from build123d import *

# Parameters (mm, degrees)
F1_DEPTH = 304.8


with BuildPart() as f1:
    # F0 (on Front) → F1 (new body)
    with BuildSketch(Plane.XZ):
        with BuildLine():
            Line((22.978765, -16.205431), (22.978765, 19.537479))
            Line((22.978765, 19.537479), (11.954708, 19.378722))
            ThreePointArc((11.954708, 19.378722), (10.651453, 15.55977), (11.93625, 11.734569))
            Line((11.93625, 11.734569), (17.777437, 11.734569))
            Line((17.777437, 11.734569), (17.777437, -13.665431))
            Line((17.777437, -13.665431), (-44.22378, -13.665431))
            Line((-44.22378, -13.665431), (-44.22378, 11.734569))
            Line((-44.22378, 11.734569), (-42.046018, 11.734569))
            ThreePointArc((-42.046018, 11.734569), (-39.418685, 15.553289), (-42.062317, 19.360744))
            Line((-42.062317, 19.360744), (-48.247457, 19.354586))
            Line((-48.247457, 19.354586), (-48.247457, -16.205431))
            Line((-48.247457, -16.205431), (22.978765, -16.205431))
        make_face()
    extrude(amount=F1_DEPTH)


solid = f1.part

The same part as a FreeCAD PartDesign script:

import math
import FreeCAD as App
import Part
import Sketcher

V = App.Vector
Q = App.Units.Quantity

doc = App.newDocument("Part")
body = doc.addObject("PartDesign::Body", "Body")

sketch1 = body.newObject("Sketcher::SketchObject", "Sketch")
sketch1.AttachmentSupport = (doc.getObject("XZ_Plane"), [""])
sketch1.MapMode = "FlatFace"
sketch1.addGeometry([
    Part.LineSegment(V(22.978765, -16.205431, 0), V(22.978765, 19.537479, 0)),
    Part.LineSegment(V(22.978765, 19.537479, 0), V(11.954708, 19.378722, 0)),
    Part.ArcOfCircle(Part.Circle(V(16.94297, 15.544578, 0), V(0, 0, 1), 6.291535), math.radians(142.452923), math.radians(217.270379)),
    Part.LineSegment(V(11.93625, 11.734569, 0), V(17.777437, 11.734569, 0)),
    Part.LineSegment(V(17.777437, 11.734569, 0), V(17.777437, -13.665431, 0)),
    Part.LineSegment(V(17.777437, -13.665431, 0), V(-44.22378, -13.665431, 0)),
    Part.LineSegment(V(-44.22378, -13.665431, 0), V(-44.22378, 11.734569, 0)),
    Part.LineSegment(V(-44.22378, 11.734569, 0), V(-42.046018, 11.734569, 0)),
    Part.ArcOfCircle(Part.Circle(V(-43.494865, 15.544577, 0), V(0, 0, 1), 4.07619), math.radians(-69.179488), math.radians(69.424398)),
    Part.LineSegment(V(-42.062317, 19.360744, 0), V(-48.247457, 19.354586, 0)),
    Part.LineSegment(V(-48.247457, 19.354586, 0), V(-48.247457, -16.205431, 0)),
    Part.LineSegment(V(-48.247457, -16.205431, 0), V(22.978765, -16.205431, 0)),
], False)
sketch1.addConstraint([
    Sketcher.Constraint("Coincident", 0, 2, 1, 1),
    Sketcher.Constraint("Coincident", 1, 2, 2, 1),
    Sketcher.Constraint("Coincident", 2, 2, 3, 1),
    Sketcher.Constraint("Coincident", 3, 2, 4, 1),
    Sketcher.Constraint("Coincident", 4, 2, 5, 1),
    Sketcher.Constraint("Coincident", 5, 2, 6, 1),
    Sketcher.Constraint("Coincident", 6, 2, 7, 1),
    Sketcher.Constraint("Coincident", 7, 2, 8, 1),
    Sketcher.Constraint("Coincident", 8, 2, 9, 1),
    Sketcher.Constraint("Coincident", 9, 2, 10, 1),
    Sketcher.Constraint("Coincident", 10, 2, 11, 1),
    Sketcher.Constraint("Coincident", 11, 2, 0, 1),
    Sketcher.Constraint("Vertical", 0),
    Sketcher.Constraint("Horizontal", 3),
    Sketcher.Constraint("Vertical", 4),
    Sketcher.Constraint("Horizontal", 5),
    Sketcher.Constraint("Vertical", 6),
    Sketcher.Constraint("Horizontal", 7),
    Sketcher.Constraint("Vertical", 10),
    Sketcher.Constraint("Horizontal", 11),
    Sketcher.Constraint("Horizontal", 2, 3, 8, 3),
    Sketcher.Constraint("Horizontal", 3, 2, 6, 2),
    Sketcher.Constraint("DistanceY", 4, 2, 4, 1, Q("1 in")),
    Sketcher.Constraint("DistanceY", 10, 2, 5, 2, Q("0.1 in")),
    Sketcher.Constraint("Radius", 8, 4.07619),
    Sketcher.Constraint("Radius", 2, 6.291535),
    Sketcher.Constraint("Distance", 1, 11.0252),
    Sketcher.Constraint("DistanceX", 11, 1, 11, 2, 71.226222),
    Sketcher.Constraint("DistanceY", 0, 1, 0, 2, 35.74291),
    Sketcher.Constraint("DistanceY", 2, 3, 0, 2, 3.992901),
    Sketcher.Constraint("DistanceX", 8, 2, 7, 2, 0.016299),
    Sketcher.Constraint("DistanceX", 3, 1, 3, 2, 5.841187),
    Sketcher.Constraint("DistanceX", 5, 2, 5, 1, 62.001217),
    Sketcher.Constraint("DistanceX", 7, 1, 7, 2, 2.177762),
    Sketcher.Constraint("DistanceY", 10, 2, 10, 1, 35.560017),
    Sketcher.Constraint("DistanceX", -1, 1, 2, 3, 16.94297),
    Sketcher.Constraint("DistanceY", -1, 1, 2, 3, 15.544578),
    Sketcher.Constraint("DistanceY", -1, 1, 1, 2, 19.378722),
])
pad1 = body.newObject("PartDesign::Pad", "Pad")
pad1.Profile = sketch1
pad1.Length = Q("12 in")

doc.recompute()
